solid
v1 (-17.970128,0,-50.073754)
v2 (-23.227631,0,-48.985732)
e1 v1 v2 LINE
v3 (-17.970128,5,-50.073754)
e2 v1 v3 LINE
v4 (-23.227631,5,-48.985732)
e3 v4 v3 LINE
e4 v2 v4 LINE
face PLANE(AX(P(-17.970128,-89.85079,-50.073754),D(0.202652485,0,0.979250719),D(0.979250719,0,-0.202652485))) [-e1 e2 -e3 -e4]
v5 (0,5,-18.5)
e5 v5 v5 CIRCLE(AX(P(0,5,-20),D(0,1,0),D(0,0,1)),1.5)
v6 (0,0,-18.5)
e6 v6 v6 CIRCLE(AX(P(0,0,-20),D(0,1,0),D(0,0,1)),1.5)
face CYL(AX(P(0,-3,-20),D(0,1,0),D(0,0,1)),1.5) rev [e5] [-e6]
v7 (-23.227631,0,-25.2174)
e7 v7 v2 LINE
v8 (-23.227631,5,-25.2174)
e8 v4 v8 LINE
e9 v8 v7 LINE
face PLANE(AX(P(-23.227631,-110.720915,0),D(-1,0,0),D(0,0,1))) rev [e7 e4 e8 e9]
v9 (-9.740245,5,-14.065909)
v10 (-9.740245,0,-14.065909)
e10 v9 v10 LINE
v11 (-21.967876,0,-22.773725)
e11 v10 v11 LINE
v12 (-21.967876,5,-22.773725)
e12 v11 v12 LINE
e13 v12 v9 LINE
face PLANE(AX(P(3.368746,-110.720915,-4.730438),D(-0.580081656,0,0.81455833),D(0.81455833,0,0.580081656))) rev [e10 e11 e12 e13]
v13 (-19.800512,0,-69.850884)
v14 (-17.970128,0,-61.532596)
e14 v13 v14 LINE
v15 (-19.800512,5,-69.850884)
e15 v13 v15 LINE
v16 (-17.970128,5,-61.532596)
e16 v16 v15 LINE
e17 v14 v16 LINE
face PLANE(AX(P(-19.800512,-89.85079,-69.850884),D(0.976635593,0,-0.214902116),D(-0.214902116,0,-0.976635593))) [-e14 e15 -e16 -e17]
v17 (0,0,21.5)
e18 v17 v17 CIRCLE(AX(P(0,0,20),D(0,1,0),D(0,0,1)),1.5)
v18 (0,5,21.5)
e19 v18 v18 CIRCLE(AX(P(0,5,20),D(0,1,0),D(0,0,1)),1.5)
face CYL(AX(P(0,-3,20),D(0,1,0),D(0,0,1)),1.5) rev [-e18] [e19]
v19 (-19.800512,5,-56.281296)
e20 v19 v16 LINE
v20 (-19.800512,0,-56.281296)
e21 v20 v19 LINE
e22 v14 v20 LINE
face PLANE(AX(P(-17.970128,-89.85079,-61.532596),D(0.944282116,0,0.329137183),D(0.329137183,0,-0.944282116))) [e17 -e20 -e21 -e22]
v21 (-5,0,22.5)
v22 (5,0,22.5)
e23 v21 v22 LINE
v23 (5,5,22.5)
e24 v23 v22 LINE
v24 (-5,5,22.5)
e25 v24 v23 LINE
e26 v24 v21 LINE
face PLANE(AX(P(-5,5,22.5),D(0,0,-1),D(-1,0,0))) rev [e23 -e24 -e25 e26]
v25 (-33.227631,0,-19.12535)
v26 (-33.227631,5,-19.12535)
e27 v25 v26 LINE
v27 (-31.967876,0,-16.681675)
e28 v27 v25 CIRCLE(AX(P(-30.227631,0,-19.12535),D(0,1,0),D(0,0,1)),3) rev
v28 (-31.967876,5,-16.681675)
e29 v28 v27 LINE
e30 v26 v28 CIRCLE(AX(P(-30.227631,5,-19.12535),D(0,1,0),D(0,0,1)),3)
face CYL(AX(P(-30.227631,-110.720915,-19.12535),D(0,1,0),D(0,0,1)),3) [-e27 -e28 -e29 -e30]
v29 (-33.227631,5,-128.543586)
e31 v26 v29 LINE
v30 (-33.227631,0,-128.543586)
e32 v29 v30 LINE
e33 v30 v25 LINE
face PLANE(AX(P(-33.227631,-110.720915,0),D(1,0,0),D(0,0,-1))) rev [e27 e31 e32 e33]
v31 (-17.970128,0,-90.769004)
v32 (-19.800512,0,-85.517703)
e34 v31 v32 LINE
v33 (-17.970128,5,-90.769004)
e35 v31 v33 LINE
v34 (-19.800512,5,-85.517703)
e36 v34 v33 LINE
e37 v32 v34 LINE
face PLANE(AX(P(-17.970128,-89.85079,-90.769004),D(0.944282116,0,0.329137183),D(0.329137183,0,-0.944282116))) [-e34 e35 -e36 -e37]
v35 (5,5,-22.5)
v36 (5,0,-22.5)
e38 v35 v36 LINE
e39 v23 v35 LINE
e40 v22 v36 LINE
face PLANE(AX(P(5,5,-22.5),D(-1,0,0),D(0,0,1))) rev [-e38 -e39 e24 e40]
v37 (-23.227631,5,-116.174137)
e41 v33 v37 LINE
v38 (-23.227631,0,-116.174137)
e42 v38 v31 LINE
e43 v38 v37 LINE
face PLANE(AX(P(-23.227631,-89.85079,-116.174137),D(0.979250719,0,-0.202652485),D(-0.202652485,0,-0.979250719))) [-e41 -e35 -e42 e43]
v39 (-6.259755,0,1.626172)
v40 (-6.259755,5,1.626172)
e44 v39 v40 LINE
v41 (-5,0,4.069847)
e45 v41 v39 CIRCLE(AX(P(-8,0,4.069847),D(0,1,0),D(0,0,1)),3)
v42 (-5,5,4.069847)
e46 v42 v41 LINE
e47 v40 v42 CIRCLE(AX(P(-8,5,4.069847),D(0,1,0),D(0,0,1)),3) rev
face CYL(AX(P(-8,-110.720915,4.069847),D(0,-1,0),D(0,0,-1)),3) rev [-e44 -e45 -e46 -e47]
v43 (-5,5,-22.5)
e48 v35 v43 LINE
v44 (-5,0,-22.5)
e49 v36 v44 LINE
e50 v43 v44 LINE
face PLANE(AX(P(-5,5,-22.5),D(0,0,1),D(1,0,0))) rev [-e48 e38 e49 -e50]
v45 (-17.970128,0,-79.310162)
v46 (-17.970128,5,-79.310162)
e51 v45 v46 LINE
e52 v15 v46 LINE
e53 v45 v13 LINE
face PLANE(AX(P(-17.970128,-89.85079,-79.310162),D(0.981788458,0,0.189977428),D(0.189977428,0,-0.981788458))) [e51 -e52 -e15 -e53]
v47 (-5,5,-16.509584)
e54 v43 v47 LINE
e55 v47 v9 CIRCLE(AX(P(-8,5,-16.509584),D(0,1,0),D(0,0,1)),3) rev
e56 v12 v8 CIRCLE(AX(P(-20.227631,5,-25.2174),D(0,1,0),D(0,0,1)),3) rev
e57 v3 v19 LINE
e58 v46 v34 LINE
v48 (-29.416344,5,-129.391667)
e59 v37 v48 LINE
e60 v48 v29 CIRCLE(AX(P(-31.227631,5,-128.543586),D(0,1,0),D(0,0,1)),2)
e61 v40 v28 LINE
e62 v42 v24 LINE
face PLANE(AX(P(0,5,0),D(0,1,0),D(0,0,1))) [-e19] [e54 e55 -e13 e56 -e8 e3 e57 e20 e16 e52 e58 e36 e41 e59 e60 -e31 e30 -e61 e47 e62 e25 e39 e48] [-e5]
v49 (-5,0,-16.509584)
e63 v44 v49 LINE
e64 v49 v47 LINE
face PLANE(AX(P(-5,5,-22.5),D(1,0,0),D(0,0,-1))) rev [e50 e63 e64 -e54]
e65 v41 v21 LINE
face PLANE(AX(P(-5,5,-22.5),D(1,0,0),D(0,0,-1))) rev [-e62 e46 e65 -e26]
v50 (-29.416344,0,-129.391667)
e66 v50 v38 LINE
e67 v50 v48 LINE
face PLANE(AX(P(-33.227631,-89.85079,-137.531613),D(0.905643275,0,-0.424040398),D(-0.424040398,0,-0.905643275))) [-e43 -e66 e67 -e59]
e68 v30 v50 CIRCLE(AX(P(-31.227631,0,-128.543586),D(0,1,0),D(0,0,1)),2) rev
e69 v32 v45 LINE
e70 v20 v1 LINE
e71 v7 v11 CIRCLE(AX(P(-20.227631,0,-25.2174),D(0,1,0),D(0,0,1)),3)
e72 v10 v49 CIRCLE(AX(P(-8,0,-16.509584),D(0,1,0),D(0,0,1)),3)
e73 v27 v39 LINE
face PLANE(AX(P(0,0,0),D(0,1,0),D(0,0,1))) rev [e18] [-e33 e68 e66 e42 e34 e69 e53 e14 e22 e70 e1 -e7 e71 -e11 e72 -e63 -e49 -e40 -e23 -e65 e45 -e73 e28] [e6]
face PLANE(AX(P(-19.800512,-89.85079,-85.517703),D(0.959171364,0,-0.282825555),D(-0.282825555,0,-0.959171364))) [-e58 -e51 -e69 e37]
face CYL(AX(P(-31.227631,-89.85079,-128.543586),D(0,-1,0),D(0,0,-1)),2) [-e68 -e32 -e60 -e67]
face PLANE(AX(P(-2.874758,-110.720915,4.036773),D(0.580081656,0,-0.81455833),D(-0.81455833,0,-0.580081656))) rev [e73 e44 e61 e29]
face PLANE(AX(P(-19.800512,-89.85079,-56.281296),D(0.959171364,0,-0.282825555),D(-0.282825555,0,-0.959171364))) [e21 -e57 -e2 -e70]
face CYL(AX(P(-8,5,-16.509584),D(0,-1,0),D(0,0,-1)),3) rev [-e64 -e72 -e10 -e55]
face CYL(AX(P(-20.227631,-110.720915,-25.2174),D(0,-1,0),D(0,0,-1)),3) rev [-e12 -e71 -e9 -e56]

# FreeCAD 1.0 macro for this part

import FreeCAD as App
import Part
import Sketcher
Q = App.Units.Quantity


def edges_at(feature, points):
    """Names of the edges that pass closest to the given points."""
    edges = feature.Shape.Edges
    near = lambda p: min(range(len(edges)), key=lambda i: edges[i].distToShape(Part.Vertex(*p))[0])
    return sorted({f"Edge{near(p) + 1}" for p in points})

doc = App.newDocument("Part")
body = doc.addObject("PartDesign::Body", "Body")

sketch1 = doc.addObject("Sketcher::SketchObject", "Sketch")
body.addObject(sketch1)
sketch1.AttachmentSupport = (doc.XZ_Plane, [""])
sketch1.MapMode = "FlatFace"
sketch1.addGeometry([
    Part.LineSegment(App.Vector(-5, -22, 0), App.Vector(-5, 22, 0)),
    Part.LineSegment(App.Vector(-5, 22, 0), App.Vector(5, 22, 0)),
    Part.LineSegment(App.Vector(5, 22, 0), App.Vector(5, -22, 0)),
    Part.LineSegment(App.Vector(5, -22, 0), App.Vector(-5, -22, 0)),
], False)
sketch1.addConstraint([
    Sketcher.Constraint("Coincident", 0, 2, 1, 1),
    Sketcher.Constraint("Coincident", 1, 2, 2, 1),
    Sketcher.Constraint("Coincident", 2, 2, 3, 1),
    Sketcher.Constraint("Coincident", 3, 2, 0, 1),
    Sketcher.Constraint("Vertical", 0),
    Sketcher.Constraint("Horizontal", 1),
    Sketcher.Constraint("Vertical", 2),
    Sketcher.Constraint("Horizontal", 3),
    Sketcher.Constraint("Symmetric", 0, 2, 2, 2, -1, 1),
    Sketcher.Constraint("DistanceX", 1, 1, 1, 2, Q("10 mm")),
    Sketcher.Constraint("DistanceY", 0, 1, 0, 2, Q("45 mm")),
])
pad1 = doc.addObject("PartDesign::Pad", "Pad")
body.addObject(pad1)
pad1.Profile = sketch1
pad1.Length = 5
pad1.Reversed = True

sketch2 = doc.addObject("Sketcher::SketchObject", "Sketch001")
body.addObject(sketch2)
sketch2.AttachmentSupport = (doc.XZ_Plane, [""])
sketch2.MapMode = "FlatFace"
sketch2.AttachmentOffset = App.Placement(App.Vector(0, 0, -5), App.Rotation())
sketch2.addGeometry([
    Part.Circle(App.Vector(0, 20, 0), App.Vector(0, 0, 1), 1.5),
    Part.Circle(App.Vector(0, -20, 0), App.Vector(0, 0, 1), 1.5),
], False)
sketch2.addConstraint([
    Sketcher.Constraint("Equal", 0, 1),
    Sketcher.Constraint("Symmetric", 0, 3, 1, 3, -1, 1),
    Sketcher.Constraint("PointOnObject", 0, 3, -2),
    Sketcher.Constraint("Diameter", 0, Q("3 mm")),
    Sketcher.Constraint("DistanceY", -1, 1, 0, 3, Q("20 mm")),
])
pocket1 = doc.addObject("PartDesign::Pocket", "Pocket")
body.addObject(pocket1)
pocket1.Profile = sketch2
pocket1.Length = 8
pocket1.Reversed = True

sketch3 = doc.addObject("Sketcher::SketchObject", "Sketch002")
body.addObject(sketch3)
sketch3.AttachmentSupport = (doc.XZ_Plane, [""])
sketch3.MapMode = "FlatFace"
sketch3.AttachmentOffset = App.Placement(App.Vector(0, 0, -5), App.Rotation())
sketch3.addGeometry([
    Part.LineSegment(App.Vector(-33, -18, 0), App.Vector(-5, 3, 0)),
    Part.LineSegment(App.Vector(-5, 3, 0), App.Vector(-5, -11, 0)),
    Part.LineSegment(App.Vector(-5, -11, 0), App.Vector(-23, -24, 0)),
    Part.LineSegment(App.Vector(-23, -24, 0), App.Vector(-23, -105, 0)),
    Part.LineSegment(App.Vector(-23, -105, 0), App.Vector(-33, -105, 0)),
    Part.LineSegment(App.Vector(-33, -105, 0), App.Vector(-33, -18, 0)),
], False)
sketch3.addConstraint([
    Sketcher.Constraint("Coincident", 0, 2, 1, 1),
    Sketcher.Constraint("Coincident", 1, 2, 2, 1),
    Sketcher.Constraint("Coincident", 2, 2, 3, 1),
    Sketcher.Constraint("Coincident", 3, 2, 4, 1),
    Sketcher.Constraint("Coincident", 4, 2, 5, 1),
    Sketcher.Constraint("Coincident", 5, 2, 0, 1),
    Sketcher.Constraint("Vertical", 1),
    Sketcher.Constraint("Vertical", 3),
    Sketcher.Constraint("Horizontal", 4),
    Sketcher.Constraint("Vertical", 5),
    Sketcher.Constraint("Parallel", 0, 2),
    Sketcher.Constraint("DistanceX", 4, 2, 4, 1, Q("10 mm")),
    Sketcher.Constraint("DistanceX", 0, 2, -1, 1, Q("5 mm")),
    Sketcher.Constraint("DistanceY", 5, 2, -1, 1, Q("17.5788 mm")),
    Sketcher.Constraint("Distance", 0, Q("34.65391 mm")),
    Sketcher.Constraint("Distance", 2, Q("22.377318 mm")),
    Sketcher.Constraint("DistanceY", 1, 2, 1, 1, Q("13.213475 mm")),
    Sketcher.Constraint("DistanceY", 3, 2, 3, 1, Q("80.868086 mm")),
])
pad2 = doc.addObject("PartDesign::Pad", "Pad001")
body.addObject(pad2)
pad2.Profile = sketch3
pad2.Length = 5

sketch4 = doc.addObject("Sketcher::SketchObject", "Sketch003")
body.addObject(sketch4)
sketch4.AttachmentSupport = (doc.XZ_Plane, [""])
sketch4.MapMode = "FlatFace"
sketch4.AttachmentOffset = App.Placement(App.Vector(0, 0, -5), App.Rotation())
sketch4.addGeometry([
    Part.LineSegment(App.Vector(-18, -91, 0), App.Vector(-23, -116, 0)),
    Part.LineSegment(App.Vector(-23, -116, 0), App.Vector(-33, -138, 0)),
    Part.LineSegment(App.Vector(-33, -138, 0), App.Vector(-33, -105, 0)),
    Part.LineSegment(App.Vector(-33, -105, 0), App.Vector(-23, -105, 0)),
    Part.LineSegment(App.Vector(-23, -105, 0), App.Vector(-23, -49, 0)),
    Part.LineSegment(App.Vector(-23, -49, 0), App.Vector(-18, -50, 0)),
    Part.LineSegment(App.Vector(-18, -50, 0), App.Vector(-20, -56, 0)),
    Part.LineSegment(App.Vector(-20, -56, 0), App.Vector(-18, -62, 0)),
    Part.LineSegment(App.Vector(-18, -62, 0), App.Vector(-20, -70, 0)),
    Part.LineSegment(App.Vector(-20, -70, 0), App.Vector(-18, -79, 0)),
    Part.LineSegment(App.Vector(-18, -79, 0), App.Vector(-20, -86, 0)),
    Part.LineSegment(App.Vector(-20, -86, 0), App.Vector(-18, -91, 0)),
], False)
sketch4.addConstraint([
    Sketcher.Constraint("Coincident", 0, 2, 1, 1),
    Sketcher.Constraint("Coincident", 1, 2, 2, 1),
    Sketcher.Constraint("Coincident", 2, 2, 3, 1),
    Sketcher.Constraint("Coincident", 3, 2, 4, 1),
    Sketcher.Constraint("Coincident", 4, 2, 5, 1),
    Sketcher.Constraint("Coincident", 5, 2, 6, 1),
    Sketcher.Constraint("Coincident", 6, 2, 7, 1),
    Sketcher.Constraint("Coincident", 7, 2, 8, 1),
    Sketcher.Constraint("Coincident", 8, 2, 9, 1),
    Sketcher.Constraint("Coincident", 9, 2, 10, 1),
    Sketcher.Constraint("Coincident", 10, 2, 11, 1),
    Sketcher.Constraint("Coincident", 11, 2, 0, 1),
    Sketcher.Constraint("Vertical", 2),
    Sketcher.Constraint("Horizontal", 3),
    Sketcher.Constraint("Vertical", 4),
    Sketcher.Constraint("Perpendicular", 0, 5),
    Sketcher.Constraint("Parallel", 6, 10),
    Sketcher.Constraint("Parallel", 7, 11),
    Sketcher.Constraint("Vertical", 0, 2, 3, 2),
    Sketcher.Constraint("Vertical", 5, 2, 7, 2),
    Sketcher.Constraint("Vertical", 6, 2, 8, 2),
    Sketcher.Constraint("Vertical", 7, 2, 9, 2),
    Sketcher.Constraint("Vertical", 8, 2, 10, 2),
    Sketcher.Constraint("Vertical", 9, 2, 11, 2),
    Sketcher.Constraint("DistanceX", 3, 1, 3, 2, Q("10 mm")),
    Sketcher.Constraint("DistanceY", 0, 2, 2, 2, Q("11.635201 mm")),
    Sketcher.Constraint("DistanceY", 7, 2, 6, 2, Q("5.251301 mm")),
    Sketcher.Constraint("Distance", 0, Q("25.943441 mm")),
    Sketcher.Constraint("Distance", 1, Q("23.582659 mm")),
    Sketcher.Constraint("Distance", 8, Q("8.517289 mm")),
    Sketcher.Constraint("Distance", 9, Q("9.634742 mm")),
    Sketcher.Constraint("DistanceY", 4, 1, 4, 2, Q("55.553204 mm")),
    Sketcher.Constraint("DistanceX", 0, 2, -1, 1, Q("23.227631 mm")),
    Sketcher.Constraint("DistanceX", 5, 2, -1, 1, Q("17.970128 mm")),
    Sketcher.Constraint("DistanceX", 6, 2, -1, 1, Q("19.800512 mm")),
    Sketcher.Constraint("DistanceY", 9, 2, -1, 1, Q("79.310162 mm")),
])
pad3 = doc.addObject("PartDesign::Pad", "Pad002")
body.addObject(pad3)
pad3.Profile = sketch4
pad3.Length = 5
doc.recompute()

fillet = doc.addObject("PartDesign::Fillet", "Fillet")
body.addObject(fillet)
fillet.Base = (pad3, edges_at(pad3, [(-33.228, 2.5, -137.532)]))
fillet.Radius = 2
doc.recompute()

fillet2 = doc.addObject("PartDesign::Fillet", "Fillet001")
body.addObject(fillet2)
fillet2.Base = (fillet, edges_at(fillet, [(-5, 2.5, 2.523), (-5, 2.5, -10.69), (-23.228, 2.5, -23.671)]))
fillet2.Radius = 3
doc.recompute()

fillet3 = doc.addObject("PartDesign::Fillet", "Fillet002")
body.addObject(fillet3)
fillet3.Base = (fillet2, edges_at(fillet2, [(-33.228, 2.5, -17.579)]))
fillet3.Radius = 3

doc.recompute()
